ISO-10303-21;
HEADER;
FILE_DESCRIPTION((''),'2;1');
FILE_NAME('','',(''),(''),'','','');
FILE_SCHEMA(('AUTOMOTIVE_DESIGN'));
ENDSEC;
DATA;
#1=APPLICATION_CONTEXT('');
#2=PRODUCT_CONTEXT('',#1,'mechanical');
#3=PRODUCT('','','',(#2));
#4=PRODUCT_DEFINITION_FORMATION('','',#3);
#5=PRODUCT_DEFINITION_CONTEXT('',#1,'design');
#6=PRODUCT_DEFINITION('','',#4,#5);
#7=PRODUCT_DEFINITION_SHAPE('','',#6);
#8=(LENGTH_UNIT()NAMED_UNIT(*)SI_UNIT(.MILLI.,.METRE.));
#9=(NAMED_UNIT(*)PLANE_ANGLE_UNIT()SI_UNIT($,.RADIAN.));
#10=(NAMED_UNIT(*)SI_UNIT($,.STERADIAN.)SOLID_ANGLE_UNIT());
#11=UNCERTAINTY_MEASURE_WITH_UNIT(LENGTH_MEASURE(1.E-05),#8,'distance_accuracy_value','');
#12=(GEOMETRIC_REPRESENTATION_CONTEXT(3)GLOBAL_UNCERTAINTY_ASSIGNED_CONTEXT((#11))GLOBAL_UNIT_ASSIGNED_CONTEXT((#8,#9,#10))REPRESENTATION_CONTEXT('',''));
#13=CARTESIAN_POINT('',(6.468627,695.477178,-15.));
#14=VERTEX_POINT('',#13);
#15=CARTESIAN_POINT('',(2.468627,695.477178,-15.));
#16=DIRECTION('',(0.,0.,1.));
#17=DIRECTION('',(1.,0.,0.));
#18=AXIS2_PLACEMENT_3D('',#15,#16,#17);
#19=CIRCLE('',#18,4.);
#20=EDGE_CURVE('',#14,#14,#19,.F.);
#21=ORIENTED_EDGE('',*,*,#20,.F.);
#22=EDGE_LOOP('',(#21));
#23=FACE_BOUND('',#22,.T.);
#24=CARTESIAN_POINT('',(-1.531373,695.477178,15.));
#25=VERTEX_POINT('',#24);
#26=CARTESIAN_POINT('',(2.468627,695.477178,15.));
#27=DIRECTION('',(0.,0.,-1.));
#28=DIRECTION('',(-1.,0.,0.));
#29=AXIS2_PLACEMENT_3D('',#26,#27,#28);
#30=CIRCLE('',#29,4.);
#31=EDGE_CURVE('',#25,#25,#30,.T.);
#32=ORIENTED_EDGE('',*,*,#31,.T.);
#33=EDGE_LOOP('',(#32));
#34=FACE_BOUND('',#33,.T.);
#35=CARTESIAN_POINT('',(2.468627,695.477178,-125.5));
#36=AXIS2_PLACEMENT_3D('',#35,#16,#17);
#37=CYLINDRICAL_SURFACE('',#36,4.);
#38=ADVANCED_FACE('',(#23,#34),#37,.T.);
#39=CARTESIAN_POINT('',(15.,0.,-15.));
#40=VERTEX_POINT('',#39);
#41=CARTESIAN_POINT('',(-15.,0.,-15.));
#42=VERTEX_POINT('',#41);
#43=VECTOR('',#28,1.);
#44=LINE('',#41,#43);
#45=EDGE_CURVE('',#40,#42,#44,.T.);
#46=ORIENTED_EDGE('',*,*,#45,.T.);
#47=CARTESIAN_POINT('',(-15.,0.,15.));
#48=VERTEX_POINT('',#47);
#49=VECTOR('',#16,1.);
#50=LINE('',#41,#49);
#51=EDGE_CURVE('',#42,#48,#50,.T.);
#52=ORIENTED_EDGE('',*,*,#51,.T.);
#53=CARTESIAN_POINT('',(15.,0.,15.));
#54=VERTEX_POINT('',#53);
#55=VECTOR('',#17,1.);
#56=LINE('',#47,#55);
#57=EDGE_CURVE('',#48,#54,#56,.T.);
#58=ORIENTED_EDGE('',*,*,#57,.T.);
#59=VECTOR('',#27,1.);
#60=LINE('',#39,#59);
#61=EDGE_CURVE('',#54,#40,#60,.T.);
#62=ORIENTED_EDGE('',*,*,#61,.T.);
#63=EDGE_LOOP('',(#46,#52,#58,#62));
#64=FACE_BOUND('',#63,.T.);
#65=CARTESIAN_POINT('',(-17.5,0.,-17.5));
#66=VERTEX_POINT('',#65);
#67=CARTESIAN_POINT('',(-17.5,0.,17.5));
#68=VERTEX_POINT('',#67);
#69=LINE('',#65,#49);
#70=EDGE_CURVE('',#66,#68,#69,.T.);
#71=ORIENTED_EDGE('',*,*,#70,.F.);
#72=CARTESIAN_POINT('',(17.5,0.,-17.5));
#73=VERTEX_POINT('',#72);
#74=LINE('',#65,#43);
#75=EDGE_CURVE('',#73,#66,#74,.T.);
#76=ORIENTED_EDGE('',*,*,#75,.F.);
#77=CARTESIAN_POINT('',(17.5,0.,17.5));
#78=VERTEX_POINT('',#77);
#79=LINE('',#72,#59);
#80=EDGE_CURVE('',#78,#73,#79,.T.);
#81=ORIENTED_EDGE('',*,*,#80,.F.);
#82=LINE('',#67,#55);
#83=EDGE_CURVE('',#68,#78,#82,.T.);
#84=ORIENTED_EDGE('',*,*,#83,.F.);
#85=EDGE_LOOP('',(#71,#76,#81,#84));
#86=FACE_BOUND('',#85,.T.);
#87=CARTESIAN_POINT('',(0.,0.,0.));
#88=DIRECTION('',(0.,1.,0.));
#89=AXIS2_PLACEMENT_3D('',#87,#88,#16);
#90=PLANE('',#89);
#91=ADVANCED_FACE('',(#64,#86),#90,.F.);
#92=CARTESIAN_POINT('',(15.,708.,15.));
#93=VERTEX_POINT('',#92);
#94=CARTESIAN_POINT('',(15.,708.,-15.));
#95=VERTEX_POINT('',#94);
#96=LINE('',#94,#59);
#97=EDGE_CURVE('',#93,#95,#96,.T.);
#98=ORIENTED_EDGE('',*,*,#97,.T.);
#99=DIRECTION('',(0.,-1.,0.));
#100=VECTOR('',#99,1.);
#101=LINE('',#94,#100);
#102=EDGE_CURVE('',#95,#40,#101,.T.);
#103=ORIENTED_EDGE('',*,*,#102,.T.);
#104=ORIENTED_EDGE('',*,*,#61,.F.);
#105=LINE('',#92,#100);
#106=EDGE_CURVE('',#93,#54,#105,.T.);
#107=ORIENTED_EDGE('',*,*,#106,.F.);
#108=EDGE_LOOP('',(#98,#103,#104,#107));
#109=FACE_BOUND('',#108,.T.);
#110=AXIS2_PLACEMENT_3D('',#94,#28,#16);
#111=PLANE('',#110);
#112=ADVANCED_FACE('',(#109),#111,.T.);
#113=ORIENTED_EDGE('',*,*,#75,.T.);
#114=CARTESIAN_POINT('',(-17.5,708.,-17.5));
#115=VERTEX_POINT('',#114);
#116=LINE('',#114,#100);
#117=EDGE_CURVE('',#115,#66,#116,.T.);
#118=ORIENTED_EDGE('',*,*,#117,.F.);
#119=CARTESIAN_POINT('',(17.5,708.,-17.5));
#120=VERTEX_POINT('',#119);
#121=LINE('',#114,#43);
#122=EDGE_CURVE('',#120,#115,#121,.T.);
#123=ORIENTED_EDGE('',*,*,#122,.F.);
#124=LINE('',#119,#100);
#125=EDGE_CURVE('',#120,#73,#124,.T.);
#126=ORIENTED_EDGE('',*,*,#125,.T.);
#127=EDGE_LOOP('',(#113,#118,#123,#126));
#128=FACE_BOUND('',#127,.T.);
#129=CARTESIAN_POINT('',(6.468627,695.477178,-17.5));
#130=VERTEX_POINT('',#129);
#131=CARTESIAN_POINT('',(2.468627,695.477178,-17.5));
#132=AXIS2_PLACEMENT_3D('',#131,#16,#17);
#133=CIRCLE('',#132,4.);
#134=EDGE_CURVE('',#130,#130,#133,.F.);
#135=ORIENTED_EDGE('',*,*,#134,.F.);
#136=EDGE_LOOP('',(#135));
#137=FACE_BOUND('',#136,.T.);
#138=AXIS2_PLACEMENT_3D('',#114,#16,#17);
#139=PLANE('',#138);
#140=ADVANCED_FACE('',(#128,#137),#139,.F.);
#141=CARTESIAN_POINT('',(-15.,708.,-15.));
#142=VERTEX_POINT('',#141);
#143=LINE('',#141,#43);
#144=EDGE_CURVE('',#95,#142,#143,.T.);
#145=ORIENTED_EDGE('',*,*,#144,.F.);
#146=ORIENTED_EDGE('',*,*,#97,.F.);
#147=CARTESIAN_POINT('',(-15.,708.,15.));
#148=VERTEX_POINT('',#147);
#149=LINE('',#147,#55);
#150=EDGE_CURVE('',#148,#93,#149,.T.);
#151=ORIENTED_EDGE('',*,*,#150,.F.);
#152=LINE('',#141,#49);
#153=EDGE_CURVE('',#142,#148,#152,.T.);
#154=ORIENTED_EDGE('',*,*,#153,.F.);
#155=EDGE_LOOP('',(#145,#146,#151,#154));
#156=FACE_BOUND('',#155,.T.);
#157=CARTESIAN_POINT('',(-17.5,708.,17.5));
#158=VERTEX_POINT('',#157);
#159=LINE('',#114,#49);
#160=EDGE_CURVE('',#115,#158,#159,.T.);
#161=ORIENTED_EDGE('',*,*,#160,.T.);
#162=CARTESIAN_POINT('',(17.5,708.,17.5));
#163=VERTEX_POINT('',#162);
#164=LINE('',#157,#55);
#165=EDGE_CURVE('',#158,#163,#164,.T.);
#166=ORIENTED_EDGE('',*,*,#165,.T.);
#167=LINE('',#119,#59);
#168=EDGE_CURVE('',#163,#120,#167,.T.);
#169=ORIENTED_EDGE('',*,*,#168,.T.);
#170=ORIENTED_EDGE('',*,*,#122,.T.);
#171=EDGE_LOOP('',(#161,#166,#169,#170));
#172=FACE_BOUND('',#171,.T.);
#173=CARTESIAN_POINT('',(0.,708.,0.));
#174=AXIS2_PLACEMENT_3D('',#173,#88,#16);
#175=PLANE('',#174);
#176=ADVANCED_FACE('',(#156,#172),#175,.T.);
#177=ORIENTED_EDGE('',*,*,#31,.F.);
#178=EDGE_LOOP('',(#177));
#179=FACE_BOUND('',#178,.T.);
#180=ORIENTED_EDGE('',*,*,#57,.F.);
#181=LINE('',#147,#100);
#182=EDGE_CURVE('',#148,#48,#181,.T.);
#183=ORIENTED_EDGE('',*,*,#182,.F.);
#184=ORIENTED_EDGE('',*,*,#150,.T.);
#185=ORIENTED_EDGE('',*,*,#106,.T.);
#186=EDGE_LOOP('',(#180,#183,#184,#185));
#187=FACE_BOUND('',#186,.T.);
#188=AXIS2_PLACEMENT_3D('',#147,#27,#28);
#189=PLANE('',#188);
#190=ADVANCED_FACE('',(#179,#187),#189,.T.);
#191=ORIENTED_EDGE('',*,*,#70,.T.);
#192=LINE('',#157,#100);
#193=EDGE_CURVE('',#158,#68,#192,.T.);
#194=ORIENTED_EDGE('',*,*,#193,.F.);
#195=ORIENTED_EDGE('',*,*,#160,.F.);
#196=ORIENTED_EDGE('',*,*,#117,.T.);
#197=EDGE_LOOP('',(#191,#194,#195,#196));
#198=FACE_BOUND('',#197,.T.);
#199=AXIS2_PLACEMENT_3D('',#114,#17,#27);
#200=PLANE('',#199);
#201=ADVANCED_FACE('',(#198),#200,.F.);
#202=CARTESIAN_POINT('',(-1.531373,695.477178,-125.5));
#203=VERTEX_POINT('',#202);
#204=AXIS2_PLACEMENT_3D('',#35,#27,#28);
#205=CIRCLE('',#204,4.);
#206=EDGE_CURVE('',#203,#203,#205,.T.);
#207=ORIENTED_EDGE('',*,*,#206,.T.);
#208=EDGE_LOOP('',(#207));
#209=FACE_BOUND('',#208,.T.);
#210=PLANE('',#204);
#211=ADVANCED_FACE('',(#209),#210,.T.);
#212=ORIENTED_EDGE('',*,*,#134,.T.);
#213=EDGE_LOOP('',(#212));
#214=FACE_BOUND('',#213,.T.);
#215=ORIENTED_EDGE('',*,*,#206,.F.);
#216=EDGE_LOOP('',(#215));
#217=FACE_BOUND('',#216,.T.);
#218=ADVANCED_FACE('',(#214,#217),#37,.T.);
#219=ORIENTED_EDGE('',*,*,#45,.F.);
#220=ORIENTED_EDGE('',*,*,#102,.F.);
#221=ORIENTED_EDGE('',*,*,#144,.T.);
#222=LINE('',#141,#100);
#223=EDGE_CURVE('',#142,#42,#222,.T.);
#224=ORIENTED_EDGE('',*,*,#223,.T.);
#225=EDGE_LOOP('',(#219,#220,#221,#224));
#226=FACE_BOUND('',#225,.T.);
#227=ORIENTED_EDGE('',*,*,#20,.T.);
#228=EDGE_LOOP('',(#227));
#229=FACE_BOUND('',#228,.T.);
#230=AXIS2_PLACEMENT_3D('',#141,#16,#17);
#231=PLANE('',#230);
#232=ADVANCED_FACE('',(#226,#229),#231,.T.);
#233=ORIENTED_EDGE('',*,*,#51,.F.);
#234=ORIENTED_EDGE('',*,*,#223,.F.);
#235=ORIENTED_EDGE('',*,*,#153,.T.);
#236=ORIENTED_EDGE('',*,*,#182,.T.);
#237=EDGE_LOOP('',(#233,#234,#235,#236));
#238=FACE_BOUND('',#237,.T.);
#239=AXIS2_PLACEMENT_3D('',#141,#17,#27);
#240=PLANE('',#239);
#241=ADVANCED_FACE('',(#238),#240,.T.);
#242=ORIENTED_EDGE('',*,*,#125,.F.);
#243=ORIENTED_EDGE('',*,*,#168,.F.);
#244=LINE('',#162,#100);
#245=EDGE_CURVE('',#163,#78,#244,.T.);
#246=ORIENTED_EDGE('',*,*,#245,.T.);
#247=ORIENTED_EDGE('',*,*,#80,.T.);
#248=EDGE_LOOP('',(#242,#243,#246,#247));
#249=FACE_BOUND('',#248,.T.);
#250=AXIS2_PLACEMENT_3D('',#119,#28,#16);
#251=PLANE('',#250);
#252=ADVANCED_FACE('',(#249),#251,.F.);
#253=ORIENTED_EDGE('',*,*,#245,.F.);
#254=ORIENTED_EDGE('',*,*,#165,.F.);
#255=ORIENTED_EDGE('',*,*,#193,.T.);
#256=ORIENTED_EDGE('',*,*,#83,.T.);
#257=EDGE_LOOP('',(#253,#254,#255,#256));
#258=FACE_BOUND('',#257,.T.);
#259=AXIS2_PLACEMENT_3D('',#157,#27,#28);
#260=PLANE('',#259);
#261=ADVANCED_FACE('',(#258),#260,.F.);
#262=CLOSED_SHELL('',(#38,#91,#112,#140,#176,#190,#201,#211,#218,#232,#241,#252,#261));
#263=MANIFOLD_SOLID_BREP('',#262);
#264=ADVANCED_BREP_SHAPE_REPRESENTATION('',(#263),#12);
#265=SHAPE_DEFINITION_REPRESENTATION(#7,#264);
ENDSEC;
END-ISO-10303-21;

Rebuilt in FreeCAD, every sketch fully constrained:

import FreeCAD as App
import Part
import Sketcher


def add_polygon(sketch, points):
    """Adds a closed chain of lines whose ends are joined by coincident constraints."""
    first, n = sketch.GeometryCount, len(points)
    for a, b in zip(points, points[1:] + points[:1]):
        sketch.addGeometry(Part.LineSegment(App.Vector(*a, 0), App.Vector(*b, 0)), False)
    for i in range(n):
        sketch.addConstraint(Sketcher.Constraint("Coincident", first + i, 2, first + (i + 1) % n, 1))

doc = App.newDocument("Part")
params = doc.addObject("Spreadsheet::Sheet", "Params")
for row, (alias, value) in enumerate([
    ("sketch1_width", "35 mm"),
    ("sketch1_width2", "30 mm"),
    ("pad1_length", "708 mm"),
    ("sketch2_diameter", "8 mm"),
    ("pad2_length", "140.5 mm"),
], start=1):
    params.set(f"A{row}", alias)
    params.set(f"B{row}", "=" + value)
    params.setAlias(f"B{row}", alias)

body = doc.addObject("PartDesign::Body", "Body")

# Sketch on XZ plane
sketch1 = body.newObject("Sketcher::SketchObject", "Sketch")
sketch1.AttachmentSupport = (doc.getObject("XZ_Plane"), [""])
sketch1.MapMode = "FlatFace"
add_polygon(sketch1, [(-18, -18), (-18, 18), (18, 18), (18, -18)])  # lines 0-3
add_polygon(sketch1, [(15, 15), (-15, 15), (-15, -15), (15, -15)])  # lines 4-7
sketch1.addConstraint([
    Sketcher.Constraint("Vertical", 0),
    Sketcher.Constraint("Horizontal", 1),
    Sketcher.Constraint("Vertical", 2),
    Sketcher.Constraint("Horizontal", 3),
    Sketcher.Constraint("Horizontal", 4),
    Sketcher.Constraint("Vertical", 5),
    Sketcher.Constraint("Horizontal", 6),
    Sketcher.Constraint("Vertical", 7),
    Sketcher.Constraint("Symmetric", 0, 2, 2, 2, -1, 1),
    Sketcher.Constraint("Symmetric", 4, 2, 6, 2, -1, 1),
    Sketcher.Constraint("Equal", 3, 0),
    Sketcher.Constraint("Equal", 6, 5),
    Sketcher.Constraint("DistanceX", 1, 1, 1, 2, 35.0),
    Sketcher.Constraint("DistanceX", 4, 2, 4, 1, 30.0),
])
sketch1.setExpression("Constraints[20]", "Params.sketch1_width")
sketch1.setExpression("Constraints[21]", "Params.sketch1_width2")
pad1 = body.newObject("PartDesign::Pad", "Pad")
pad1.Profile = sketch1
pad1.setExpression("Length", "Params.pad1_length")
pad1.Reversed = True

# Sketch on XY plane
sketch2 = body.newObject("Sketcher::SketchObject", "Sketch001")
sketch2.AttachmentSupport = (doc.getObject("XY_Plane"), [""])
sketch2.MapMode = "FlatFace"
sketch2.AttachmentOffset = App.Placement(App.Vector(0, 0, 15), App.Rotation())
sketch2.addGeometry(Part.Circle(App.Vector(2.5, 695.5, 0), App.Vector(0, 0, 1), 4), False)
sketch2.addConstraint([
    Sketcher.Constraint("Diameter", 0, 8.0),
    Sketcher.Constraint("DistanceY", -1, 1, 0, 3, 695.477178),
    Sketcher.Constraint("DistanceX", -1, 1, 0, 3, 2.468627),
])
sketch2.setExpression("Constraints[0]", "Params.sketch2_diameter")
pad2 = body.newObject("PartDesign::Pad", "Pad001")
pad2.Profile = sketch2
pad2.setExpression("Length", "Params.pad2_length")
pad2.Reversed = True

doc.recompute()
